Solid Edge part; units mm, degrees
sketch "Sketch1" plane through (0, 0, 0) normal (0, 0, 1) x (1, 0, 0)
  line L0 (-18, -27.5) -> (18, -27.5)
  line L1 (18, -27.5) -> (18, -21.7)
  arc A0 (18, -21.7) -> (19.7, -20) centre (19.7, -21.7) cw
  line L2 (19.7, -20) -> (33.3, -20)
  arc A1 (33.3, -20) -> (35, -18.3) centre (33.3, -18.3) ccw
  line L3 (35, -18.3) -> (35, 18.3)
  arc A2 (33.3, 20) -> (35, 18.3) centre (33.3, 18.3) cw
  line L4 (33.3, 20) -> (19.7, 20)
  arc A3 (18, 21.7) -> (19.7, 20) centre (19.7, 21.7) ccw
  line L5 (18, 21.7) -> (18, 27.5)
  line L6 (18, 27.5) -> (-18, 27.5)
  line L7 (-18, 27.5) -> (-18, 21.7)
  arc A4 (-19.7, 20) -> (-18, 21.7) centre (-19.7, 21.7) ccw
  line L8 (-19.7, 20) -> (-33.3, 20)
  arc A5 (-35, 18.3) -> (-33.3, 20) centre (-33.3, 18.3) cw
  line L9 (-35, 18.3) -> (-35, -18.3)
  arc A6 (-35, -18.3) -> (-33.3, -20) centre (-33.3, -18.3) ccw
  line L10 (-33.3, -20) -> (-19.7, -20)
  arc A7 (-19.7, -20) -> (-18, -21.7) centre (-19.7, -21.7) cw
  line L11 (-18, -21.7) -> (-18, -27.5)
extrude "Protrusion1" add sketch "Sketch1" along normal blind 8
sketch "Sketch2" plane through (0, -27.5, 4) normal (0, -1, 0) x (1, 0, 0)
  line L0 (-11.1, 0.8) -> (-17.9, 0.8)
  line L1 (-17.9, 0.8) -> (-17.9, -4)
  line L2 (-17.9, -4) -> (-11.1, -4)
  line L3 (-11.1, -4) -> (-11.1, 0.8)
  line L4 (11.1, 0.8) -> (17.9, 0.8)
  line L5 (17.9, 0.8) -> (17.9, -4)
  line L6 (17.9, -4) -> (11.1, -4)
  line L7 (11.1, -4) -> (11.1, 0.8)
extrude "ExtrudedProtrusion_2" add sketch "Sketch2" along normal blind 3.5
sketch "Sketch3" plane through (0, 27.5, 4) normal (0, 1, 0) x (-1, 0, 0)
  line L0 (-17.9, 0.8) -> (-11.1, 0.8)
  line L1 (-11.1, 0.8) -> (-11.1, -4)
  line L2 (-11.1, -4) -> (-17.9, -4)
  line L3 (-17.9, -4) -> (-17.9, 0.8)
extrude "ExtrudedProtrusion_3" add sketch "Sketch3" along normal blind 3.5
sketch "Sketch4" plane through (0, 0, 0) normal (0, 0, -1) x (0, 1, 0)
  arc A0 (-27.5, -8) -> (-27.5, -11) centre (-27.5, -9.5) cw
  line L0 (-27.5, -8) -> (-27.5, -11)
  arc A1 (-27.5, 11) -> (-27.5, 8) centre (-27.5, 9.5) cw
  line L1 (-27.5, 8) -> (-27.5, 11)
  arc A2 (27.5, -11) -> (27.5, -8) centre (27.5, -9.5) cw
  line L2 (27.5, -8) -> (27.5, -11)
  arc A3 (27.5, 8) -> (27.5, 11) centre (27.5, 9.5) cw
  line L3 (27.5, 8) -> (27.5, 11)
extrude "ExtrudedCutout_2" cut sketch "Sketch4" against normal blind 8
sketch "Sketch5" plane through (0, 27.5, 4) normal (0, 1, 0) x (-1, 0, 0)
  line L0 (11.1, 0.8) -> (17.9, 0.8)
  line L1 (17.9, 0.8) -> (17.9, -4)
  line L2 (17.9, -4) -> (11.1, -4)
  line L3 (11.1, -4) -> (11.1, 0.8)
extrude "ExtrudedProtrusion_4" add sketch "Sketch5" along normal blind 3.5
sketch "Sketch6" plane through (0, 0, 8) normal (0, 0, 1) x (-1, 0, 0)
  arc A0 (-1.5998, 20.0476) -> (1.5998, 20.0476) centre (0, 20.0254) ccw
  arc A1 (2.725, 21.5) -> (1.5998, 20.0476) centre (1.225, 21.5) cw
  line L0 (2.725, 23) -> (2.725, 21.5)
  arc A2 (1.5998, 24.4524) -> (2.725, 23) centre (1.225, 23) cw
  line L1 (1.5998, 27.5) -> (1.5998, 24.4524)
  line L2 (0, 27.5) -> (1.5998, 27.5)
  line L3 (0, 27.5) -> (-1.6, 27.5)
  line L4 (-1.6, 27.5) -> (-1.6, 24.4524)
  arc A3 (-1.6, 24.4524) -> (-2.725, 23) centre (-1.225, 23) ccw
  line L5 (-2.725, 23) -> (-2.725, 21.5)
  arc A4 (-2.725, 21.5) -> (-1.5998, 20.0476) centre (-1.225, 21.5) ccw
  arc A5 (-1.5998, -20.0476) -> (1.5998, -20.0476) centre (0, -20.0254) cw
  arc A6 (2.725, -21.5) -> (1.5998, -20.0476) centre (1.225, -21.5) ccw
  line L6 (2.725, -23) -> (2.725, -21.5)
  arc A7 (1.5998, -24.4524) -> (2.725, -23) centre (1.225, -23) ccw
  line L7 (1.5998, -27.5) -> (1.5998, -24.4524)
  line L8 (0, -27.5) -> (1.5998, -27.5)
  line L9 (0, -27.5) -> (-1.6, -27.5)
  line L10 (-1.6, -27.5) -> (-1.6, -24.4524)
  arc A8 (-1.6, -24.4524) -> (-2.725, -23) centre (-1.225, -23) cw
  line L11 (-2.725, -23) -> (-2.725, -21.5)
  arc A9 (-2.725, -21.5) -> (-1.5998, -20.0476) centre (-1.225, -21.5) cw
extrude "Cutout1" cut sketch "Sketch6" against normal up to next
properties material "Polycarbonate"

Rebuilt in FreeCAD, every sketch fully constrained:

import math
import FreeCAD as App
import Part
import Sketcher
from FreeCAD import Vector


def add_polygon(sketch, points):
    """Adds a closed chain of lines whose ends are joined by coincident constraints."""
    first, n = sketch.GeometryCount, len(points)
    for a, b in zip(points, points[1:] + points[:1]):
        sketch.addGeometry(Part.LineSegment(App.Vector(*a, 0), App.Vector(*b, 0)), False)
    for i in range(n):
        sketch.addConstraint(Sketcher.Constraint("Coincident", first + i, 2, first + (i + 1) % n, 1))

doc = App.newDocument("Part")
body = doc.addObject("PartDesign::Body", "Body")

# Sketch on XY plane
sketch1 = body.newObject("Sketcher::SketchObject", "Sketch")
sketch1.AttachmentSupport = (doc.getObject("XY_Plane"), [""])
sketch1.MapMode = "FlatFace"
sketch1.addGeometry([
    Part.LineSegment(Vector(-18, -21.7, 0), Vector(-18, -27.5, 0)),  # 0
    Part.LineSegment(Vector(-18, -27.5, 0), Vector(18, -27.5, 0)),  # 1
    Part.LineSegment(Vector(18, -27.5, 0), Vector(18, -21.7, 0)),  # 2
    Part.ArcOfCircle(Part.Circle(Vector(19.7, -21.7, 0), Vector(0, 0, 1), 1.7), math.radians(90), math.radians(180)),  # 3
    Part.LineSegment(Vector(19.7, -20, 0), Vector(33.3, -20, 0)),  # 4
    Part.ArcOfCircle(Part.Circle(Vector(33.3, -18.3, 0), Vector(0, 0, 1), 1.7), math.radians(-90), math.radians(0)),  # 5
    Part.LineSegment(Vector(35, -18.3, 0), Vector(35, 18.3, 0)),  # 6
    Part.ArcOfCircle(Part.Circle(Vector(33.3, 18.3, 0), Vector(0, 0, 1), 1.7), math.radians(0), math.radians(90)),  # 7
    Part.LineSegment(Vector(33.3, 20, 0), Vector(19.7, 20, 0)),  # 8
    Part.ArcOfCircle(Part.Circle(Vector(19.7, 21.7, 0), Vector(0, 0, 1), 1.7), math.radians(180), math.radians(270)),  # 9
    Part.LineSegment(Vector(18, 21.7, 0), Vector(18, 27.5, 0)),  # 10
    Part.LineSegment(Vector(18, 27.5, 0), Vector(-18, 27.5, 0)),  # 11
    Part.LineSegment(Vector(-18, 27.5, 0), Vector(-18, 21.7, 0)),  # 12
    Part.ArcOfCircle(Part.Circle(Vector(-19.7, 21.7, 0), Vector(0, 0, 1), 1.7), math.radians(-90), math.radians(0)),  # 13
    Part.LineSegment(Vector(-19.7, 20, 0), Vector(-33.3, 20, 0)),  # 14
    Part.ArcOfCircle(Part.Circle(Vector(-33.3, 18.3, 0), Vector(0, 0, 1), 1.7), math.radians(90), math.radians(180)),  # 15
    Part.LineSegment(Vector(-35, 18.3, 0), Vector(-35, -18.3, 0)),  # 16
    Part.ArcOfCircle(Part.Circle(Vector(-33.3, -18.3, 0), Vector(0, 0, 1), 1.7), math.radians(180), math.radians(270)),  # 17
    Part.LineSegment(Vector(-33.3, -20, 0), Vector(-19.7, -20, 0)),  # 18
    Part.ArcOfCircle(Part.Circle(Vector(-19.7, -21.7, 0), Vector(0, 0, 1), 1.7), math.radians(0), math.radians(90)),  # 19
], False)
sketch1.addConstraint([
    Sketcher.Constraint("Coincident", 0, 2, 1, 1),
    Sketcher.Constraint("Coincident", 1, 2, 2, 1),
    Sketcher.Constraint("Tangent", 2, 2, 3, 2),
    Sketcher.Constraint("Tangent", 3, 1, 4, 1),
    Sketcher.Constraint("Tangent", 4, 2, 5, 1),
    Sketcher.Constraint("Tangent", 5, 2, 6, 1),
    Sketcher.Constraint("Tangent", 6, 2, 7, 1),
    Sketcher.Constraint("Tangent", 7, 2, 8, 1),
    Sketcher.Constraint("Tangent", 8, 2, 9, 2),
    Sketcher.Constraint("Tangent", 9, 1, 10, 1),
    Sketcher.Constraint("Coincident", 10, 2, 11, 1),
    Sketcher.Constraint("Coincident", 11, 2, 12, 1),
    Sketcher.Constraint("Tangent", 12, 2, 13, 2),
    Sketcher.Constraint("Tangent", 13, 1, 14, 1),
    Sketcher.Constraint("Tangent", 14, 2, 15, 1),
    Sketcher.Constraint("Tangent", 15, 2, 16, 1),
    Sketcher.Constraint("Tangent", 16, 2, 17, 1),
    Sketcher.Constraint("Tangent", 17, 2, 18, 1),
    Sketcher.Constraint("Tangent", 18, 2, 19, 2),
    Sketcher.Constraint("Tangent", 19, 1, 0, 1),
    Sketcher.Constraint("Vertical", 0),
    Sketcher.Constraint("Horizontal", 1),
    Sketcher.Constraint("Vertical", 2),
    Sketcher.Constraint("Horizontal", 4),
    Sketcher.Constraint("Vertical", 6),
    Sketcher.Constraint("Horizontal", 8),
    Sketcher.Constraint("Vertical", 10),
    Sketcher.Constraint("Horizontal", 11),
    Sketcher.Constraint("Vertical", 12),
    Sketcher.Constraint("Horizontal", 14),
    Sketcher.Constraint("Vertical", 16),
    Sketcher.Constraint("Horizontal", 18),
    Sketcher.Constraint("Equal", 3, 5),
    Sketcher.Constraint("Equal", 5, 7),
    Sketcher.Constraint("Equal", 7, 9),
    Sketcher.Constraint("Equal", 9, 13),
    Sketcher.Constraint("Equal", 13, 15),
    Sketcher.Constraint("Equal", 15, 17),
    Sketcher.Constraint("Equal", 17, 19),
    Sketcher.Constraint("Symmetric", 3, 3, 13, 3, -1, 1),
    Sketcher.Constraint("Symmetric", 7, 3, 17, 3, -1, 1),
    Sketcher.Constraint("Symmetric", 0, 2, 10, 2, -1, 1),
    Sketcher.Constraint("Symmetric", 9, 3, 13, 3, -2),
    Sketcher.Constraint("Radius", 3, 1.7),
    Sketcher.Constraint("DistanceX", 1, 1, 1, 2, 36.0),
    Sketcher.Constraint("DistanceX", 4, 1, 4, 2, 13.6),
    Sketcher.Constraint("DistanceY", 0, 2, 0, 1, 5.8),
    Sketcher.Constraint("DistanceY", 6, 1, 6, 2, 36.6),
])
pad1 = body.newObject("PartDesign::Pad", "Pad")
pad1.Profile = sketch1
pad1.Length = 8

# Sketch on XZ plane
sketch2 = body.newObject("Sketcher::SketchObject", "Sketch001")
sketch2.AttachmentSupport = (doc.getObject("XZ_Plane"), [""])
sketch2.MapMode = "FlatFace"
sketch2.AttachmentOffset = App.Placement(Vector(0, 0, 27.5), App.Rotation())
add_polygon(sketch2, [(-11.1, 0), (-11.1, 4.8), (-17.9, 4.8), (-17.9, 0)])  # lines 0-3
add_polygon(sketch2, [(17.9, 4.8), (11.1, 4.8), (11.1, 0), (17.9, 0)])  # lines 4-7
sketch2.addConstraint([
    Sketcher.Constraint("Vertical", 0),
    Sketcher.Constraint("Horizontal", 1),
    Sketcher.Constraint("Vertical", 2),
    Sketcher.Constraint("Horizontal", 3),
    Sketcher.Constraint("Horizontal", 4),
    Sketcher.Constraint("Vertical", 5),
    Sketcher.Constraint("Horizontal", 6),
    Sketcher.Constraint("Vertical", 7),
    Sketcher.Constraint("Symmetric", 3, 2, 5, 2, -1, 1),
    Sketcher.Constraint("Symmetric", 2, 2, 6, 2, -2),
    Sketcher.Constraint("Horizontal", 1, 2, 4, 2),
    Sketcher.Constraint("DistanceX", 1, 2, 1, 1, 6.8),
    Sketcher.Constraint("DistanceY", 0, 1, 0, 2, 4.8),
    Sketcher.Constraint("DistanceX", 1, 2, 4, 2, 29.0),
])
pad2 = body.newObject("PartDesign::Pad", "Pad001")
pad2.Profile = sketch2
pad2.Length = 3.5

# Sketch on XZ plane
sketch3 = body.newObject("Sketcher::SketchObject", "Sketch002")
sketch3.AttachmentSupport = (doc.getObject("XZ_Plane"), [""])
sketch3.MapMode = "FlatFace"
sketch3.AttachmentOffset = App.Placement(Vector(0, 0, -27.5), App.Rotation())
add_polygon(sketch3, [(11.1, 4.8), (17.9, 4.8), (17.9, 0), (11.1, 0)])  # lines 0-3
sketch3.addConstraint([
    Sketcher.Constraint("Horizontal", 0),
    Sketcher.Constraint("Vertical", 1),
    Sketcher.Constraint("Horizontal", 2),
    Sketcher.Constraint("Vertical", 3),
    Sketcher.Constraint("PointOnObject", 1, 2, -1),
    Sketcher.Constraint("DistanceX", 0, 1, 0, 2, 6.8),
    Sketcher.Constraint("DistanceY", 1, 2, 1, 1, 4.8),
    Sketcher.Constraint("DistanceX", -1, 1, 0, 2, 17.9),
])
pad3 = body.newObject("PartDesign::Pad", "Pad002")
pad3.Profile = sketch3
pad3.Length = 3.5
pad3.Reversed = True

# Sketch on XY plane
sketch4 = body.newObject("Sketcher::SketchObject", "Sketch003")
sketch4.AttachmentSupport = (doc.getObject("XY_Plane"), [""])
sketch4.MapMode = "FlatFace"
sketch4.addGeometry([
    Part.ArcOfCircle(Part.Circle(Vector(-9.5, -27.5, 0), Vector(0, 0, 1), 1.5), math.radians(0), math.radians(180)),  # 0
    Part.LineSegment(Vector(-8, -27.5, 0), Vector(-11, -27.5, 0)),  # 1
    Part.ArcOfCircle(Part.Circle(Vector(9.5, -27.5, 0), Vector(0, 0, 1), 1.5), math.radians(0), math.radians(180)),  # 2
    Part.LineSegment(Vector(11, -27.5, 0), Vector(8, -27.5, 0)),  # 3
    Part.ArcOfCircle(Part.Circle(Vector(-9.5, 27.5, 0), Vector(0, 0, 1), 1.5), math.radians(180), math.radians(360)),  # 4
    Part.LineSegment(Vector(-11, 27.5, 0), Vector(-8, 27.5, 0)),  # 5
    Part.ArcOfCircle(Part.Circle(Vector(9.5, 27.5, 0), Vector(0, 0, 1), 1.5), math.radians(180), math.radians(360)),  # 6
    Part.LineSegment(Vector(8, 27.5, 0), Vector(11, 27.5, 0)),  # 7
], False)
sketch4.addConstraint([
    Sketcher.Constraint("Coincident", 0, 1, 1, 1),
    Sketcher.Constraint("Coincident", 1, 2, 0, 2),
    Sketcher.Constraint("Coincident", 2, 1, 3, 1),
    Sketcher.Constraint("Coincident", 3, 2, 2, 2),
    Sketcher.Constraint("Coincident", 4, 1, 5, 1),
    Sketcher.Constraint("Coincident", 5, 2, 4, 2),
    Sketcher.Constraint("Coincident", 6, 1, 7, 1),
    Sketcher.Constraint("Coincident", 7, 2, 6, 2),
    Sketcher.Constraint("Horizontal", 1),
    Sketcher.Constraint("Horizontal", 3),
    Sketcher.Constraint("Horizontal", 5),
    Sketcher.Constraint("Horizontal", 7),
    Sketcher.Constraint("Equal", 0, 2),
    Sketcher.Constraint("Equal", 2, 4),
    Sketcher.Constraint("Equal", 4, 6),
    Sketcher.Constraint("Symmetric", 2, 3, 4, 3, -1, 1),
    Sketcher.Constraint("Symmetric", 0, 3, 6, 3, -1, 1),
    Sketcher.Constraint("Symmetric", 0, 3, 2, 3, -2),
    Sketcher.Constraint("Horizontal", 2, 3, 0, 1),
    Sketcher.Constraint("Horizontal", 1, 2, 2, 1),
    Sketcher.Constraint("Horizontal", 6, 3, 4, 1),
    Sketcher.Constraint("Horizontal", 5, 2, 6, 1),
    Sketcher.Constraint("Radius", 0, 1.5),
    Sketcher.Constraint("DistanceX", 0, 1, -1, 1, 8.0),
    Sketcher.Constraint("DistanceY", 0, 3, 4, 3, 55.0),
])
pocket1 = body.newObject("PartDesign::Pocket", "Pocket")
pocket1.Profile = sketch4
pocket1.Length = 8
pocket1.Reversed = True

# Sketch on XZ plane
sketch5 = body.newObject("Sketcher::SketchObject", "Sketch004")
sketch5.AttachmentSupport = (doc.getObject("XZ_Plane"), [""])
sketch5.MapMode = "FlatFace"
sketch5.AttachmentOffset = App.Placement(Vector(0, 0, -27.5), App.Rotation())
add_polygon(sketch5, [(-17.9, 4.8), (-11.1, 4.8), (-11.1, 0), (-17.9, 0)])  # lines 0-3
sketch5.addConstraint([
    Sketcher.Constraint("Horizontal", 0),
    Sketcher.Constraint("Vertical", 1),
    Sketcher.Constraint("Horizontal", 2),
    Sketcher.Constraint("Vertical", 3),
    Sketcher.Constraint("PointOnObject", 1, 2, -1),
    Sketcher.Constraint("DistanceX", 0, 1, 0, 2, 6.8),
    Sketcher.Constraint("DistanceY", 1, 2, 1, 1, 4.8),
    Sketcher.Constraint("DistanceX", 0, 2, -1, 1, 11.1),
])
pad4 = body.newObject("PartDesign::Pad", "Pad003")
pad4.Profile = sketch5
pad4.Length = 3.5
pad4.Reversed = True

# Sketch on XY plane
sketch6 = body.newObject("Sketcher::SketchObject", "Sketch005")
sketch6.AttachmentSupport = (doc.getObject("XY_Plane"), [""])
sketch6.MapMode = "FlatFace"
sketch6.AttachmentOffset = App.Placement(Vector(0, 0, 8), App.Rotation())
sketch6.addGeometry([
    Part.ArcOfCircle(Part.Circle(Vector(1.225, -21.5, 0), Vector(0, 0, 1), 1.5), math.radians(0), math.radians(75.530183)),  # 0
    Part.ArcOfCircle(Part.Circle(Vector(0, -20.0254, 0), Vector(0, 0, 1), 1.599954), math.radians(-0.795027), math.radians(180.795027)),  # 1
    Part.ArcOfCircle(Part.Circle(Vector(-1.225, -21.5, 0), Vector(0, 0, 1), 1.5), math.radians(104.469817), math.radians(180)),  # 2
    Part.LineSegment(Vector(-2.725, -21.5, 0), Vector(-2.725, -23, 0)),  # 3
    Part.ArcOfCircle(Part.Circle(Vector(-1.225, -23, 0), Vector(0, 0, 1), 1.49998), math.radians(180), math.radians(255.530183)),  # 4
    Part.LineSegment(Vector(-1.5998, -24.4524, 0), Vector(-1.5998, -27.5, 0)),  # 5
    Part.LineSegment(Vector(-1.5998, -27.5, 0), Vector(1.6, -27.5, 0)),  # 6
    Part.LineSegment(Vector(1.6, -27.5, 0), Vector(1.6, -24.4524, 0)),  # 7
    Part.ArcOfCircle(Part.Circle(Vector(1.225, -23, 0), Vector(0, 0, 1), 1.50003), math.radians(-75.522786), math.radians(0)),  # 8
    Part.LineSegment(Vector(2.725, -23, 0), Vector(2.725, -21.5, 0)),  # 9
    Part.ArcOfCircle(Part.Circle(Vector(0, 20.0254, 0), Vector(0, 0, 1), 1.599954), math.radians(179.204973), math.radians(360.795027)),  # 10
    Part.ArcOfCircle(Part.Circle(Vector(1.225, 21.5, 0), Vector(0, 0, 1), 1.5), math.radians(-75.530183), math.radians(0)),  # 11
    Part.LineSegment(Vector(2.725, 21.5, 0), Vector(2.725, 23, 0)),  # 12
    Part.ArcOfCircle(Part.Circle(Vector(1.225, 23, 0), Vector(0, 0, 1), 1.50003), math.radians(0), math.radians(75.522786)),  # 13
    Part.LineSegment(Vector(1.6, 24.4524, 0), Vector(1.6, 27.5, 0)),  # 14
    Part.LineSegment(Vector(1.6, 27.5, 0), Vector(-1.5998, 27.5, 0)),  # 15
    Part.LineSegment(Vector(-1.5998, 27.5, 0), Vector(-1.5998, 24.4524, 0)),  # 16
    Part.ArcOfCircle(Part.Circle(Vector(-1.225, 23, 0), Vector(0, 0, 1), 1.49998), math.radians(104.469817), math.radians(180)),  # 17
    Part.LineSegment(Vector(-2.725, 23, 0), Vector(-2.725, 21.5, 0)),  # 18
    Part.ArcOfCircle(Part.Circle(Vector(-1.225, 21.5, 0), Vector(0, 0, 1), 1.5), math.radians(180), math.radians(255.530183)),  # 19
], False)
sketch6.addConstraint([
    Sketcher.Constraint("Coincident", 0, 2, 1, 1),
    Sketcher.Constraint("Coincident", 1, 2, 2, 1),
    Sketcher.Constraint("Coincident", 2, 2, 3, 1),
    Sketcher.Constraint("Coincident", 3, 2, 4, 1),
    Sketcher.Constraint("Coincident", 4, 2, 5, 1),
    Sketcher.Constraint("Coincident", 5, 2, 6, 1),
    Sketcher.Constraint("Coincident", 6, 2, 7, 1),
    Sketcher.Constraint("Coincident", 7, 2, 8, 1),
    Sketcher.Constraint("Coincident", 8, 2, 9, 1),
    Sketcher.Constraint("Coincident", 9, 2, 0, 1),
    Sketcher.Constraint("Coincident", 10, 2, 11, 1),
    Sketcher.Constraint("Coincident", 11, 2, 12, 1),
    Sketcher.Constraint("Coincident", 12, 2, 13, 1),
    Sketcher.Constraint("Coincident", 13, 2, 14, 1),
    Sketcher.Constraint("Coincident", 14, 2, 15, 1),
    Sketcher.Constraint("Coincident", 15, 2, 16, 1),
    Sketcher.Constraint("Coincident", 16, 2, 17, 1),
    Sketcher.Constraint("Coincident", 17, 2, 18, 1),
    Sketcher.Constraint("Coincident", 18, 2, 19, 1),
    Sketcher.Constraint("Coincident", 19, 2, 10, 1),
    Sketcher.Constraint("Vertical", 3),
    Sketcher.Constraint("Vertical", 5),
    Sketcher.Constraint("Horizontal", 6),
    Sketcher.Constraint("Vertical", 7),
    Sketcher.Constraint("Vertical", 9),
    Sketcher.Constraint("Vertical", 12),
    Sketcher.Constraint("Vertical", 14),
    Sketcher.Constraint("Horizontal", 15),
    Sketcher.Constraint("Vertical", 16),
    Sketcher.Constraint("Vertical", 18),
    Sketcher.Constraint("PointOnObject", 1, 3, -2),
    Sketcher.Constraint("PointOnObject", 10, 3, -2),
    Sketcher.Constraint("Radius", 0, 1.5),
    Sketcher.Constraint("Radius", 1, 1.6),
    Sketcher.Constraint("Radius", 2, 1.5),
    Sketcher.Constraint("Radius", 4, 1.5),
    Sketcher.Constraint("Radius", 8, 1.5),
    Sketcher.Constraint("Radius", 10, 1.6),
    Sketcher.Constraint("Radius", 11, 1.5),
    Sketcher.Constraint("Radius", 13, 1.5),
    Sketcher.Constraint("Radius", 17, 1.5),
    Sketcher.Constraint("Radius", 19, 1.5),
    Sketcher.Constraint("DistanceY", 3, 2, 3, 1, 1.5),
    Sketcher.Constraint("DistanceY", 9, 1, 9, 2, 1.5),
    Sketcher.Constraint("DistanceY", 12, 1, 12, 2, 1.5),
    Sketcher.Constraint("DistanceY", 18, 2, 18, 1, 1.5),
    Sketcher.Constraint("DistanceY", 4, 3, -1, 1, 23.0),
    Sketcher.Constraint("DistanceY", 8, 3, -1, 1, 23.0),
    Sketcher.Constraint("DistanceY", -1, 1, 13, 3, 23.0),
    Sketcher.Constraint("DistanceY", -1, 1, 17, 3, 23.0),
    Sketcher.Constraint("DistanceY", 3, 2, -1, 1, 23.0),
    Sketcher.Constraint("DistanceY", 8, 2, -1, 1, 23.0),
    Sketcher.Constraint("DistanceY", -1, 1, 12, 2, 23.0),
    Sketcher.Constraint("DistanceY", -1, 1, 17, 2, 23.0),
    Sketcher.Constraint("DistanceY", 0, 3, 11, 3, 43.0),
    Sketcher.Constraint("DistanceY", 2, 3, 11, 3, 43.0),
    Sketcher.Constraint("DistanceY", 5, 2, 2, 3, 6.0),
    Sketcher.Constraint("DistanceY", 11, 3, 14, 2, 6.0),
    Sketcher.Constraint("DistanceY", 19, 3, 15, 2, 6.0),
    Sketcher.Constraint("DistanceY", 0, 3, -1, 1, 21.5),
    Sketcher.Constraint("DistanceX", -1, 1, 6, 2, 1.6),
    Sketcher.Constraint("DistanceX", -1, 1, 13, 2, 1.6),
    Sketcher.Constraint("DistanceX", 2, 3, 0, 3, 2.45),
    Sketcher.Constraint("DistanceX", 2, 3, 11, 3, 2.45),
    Sketcher.Constraint("DistanceX", 17, 3, 13, 3, 2.45),
    Sketcher.Constraint("DistanceX", 6, 1, 6, 2, 3.1998),
    Sketcher.Constraint("DistanceX", 15, 2, 15, 1, 3.1998),
    Sketcher.Constraint("DistanceY", 5, 2, 5, 1, 3.0476),
    Sketcher.Constraint("DistanceY", 1, 3, -1, 1, 20.0254),
    Sketcher.Constraint("DistanceY", -1, 1, 10, 3, 20.0254),
])
pocket2 = body.newObject("PartDesign::Pocket", "Pocket001")
pocket2.Profile = sketch6
pocket2.Type = "UpToFirst"

doc.recompute()
